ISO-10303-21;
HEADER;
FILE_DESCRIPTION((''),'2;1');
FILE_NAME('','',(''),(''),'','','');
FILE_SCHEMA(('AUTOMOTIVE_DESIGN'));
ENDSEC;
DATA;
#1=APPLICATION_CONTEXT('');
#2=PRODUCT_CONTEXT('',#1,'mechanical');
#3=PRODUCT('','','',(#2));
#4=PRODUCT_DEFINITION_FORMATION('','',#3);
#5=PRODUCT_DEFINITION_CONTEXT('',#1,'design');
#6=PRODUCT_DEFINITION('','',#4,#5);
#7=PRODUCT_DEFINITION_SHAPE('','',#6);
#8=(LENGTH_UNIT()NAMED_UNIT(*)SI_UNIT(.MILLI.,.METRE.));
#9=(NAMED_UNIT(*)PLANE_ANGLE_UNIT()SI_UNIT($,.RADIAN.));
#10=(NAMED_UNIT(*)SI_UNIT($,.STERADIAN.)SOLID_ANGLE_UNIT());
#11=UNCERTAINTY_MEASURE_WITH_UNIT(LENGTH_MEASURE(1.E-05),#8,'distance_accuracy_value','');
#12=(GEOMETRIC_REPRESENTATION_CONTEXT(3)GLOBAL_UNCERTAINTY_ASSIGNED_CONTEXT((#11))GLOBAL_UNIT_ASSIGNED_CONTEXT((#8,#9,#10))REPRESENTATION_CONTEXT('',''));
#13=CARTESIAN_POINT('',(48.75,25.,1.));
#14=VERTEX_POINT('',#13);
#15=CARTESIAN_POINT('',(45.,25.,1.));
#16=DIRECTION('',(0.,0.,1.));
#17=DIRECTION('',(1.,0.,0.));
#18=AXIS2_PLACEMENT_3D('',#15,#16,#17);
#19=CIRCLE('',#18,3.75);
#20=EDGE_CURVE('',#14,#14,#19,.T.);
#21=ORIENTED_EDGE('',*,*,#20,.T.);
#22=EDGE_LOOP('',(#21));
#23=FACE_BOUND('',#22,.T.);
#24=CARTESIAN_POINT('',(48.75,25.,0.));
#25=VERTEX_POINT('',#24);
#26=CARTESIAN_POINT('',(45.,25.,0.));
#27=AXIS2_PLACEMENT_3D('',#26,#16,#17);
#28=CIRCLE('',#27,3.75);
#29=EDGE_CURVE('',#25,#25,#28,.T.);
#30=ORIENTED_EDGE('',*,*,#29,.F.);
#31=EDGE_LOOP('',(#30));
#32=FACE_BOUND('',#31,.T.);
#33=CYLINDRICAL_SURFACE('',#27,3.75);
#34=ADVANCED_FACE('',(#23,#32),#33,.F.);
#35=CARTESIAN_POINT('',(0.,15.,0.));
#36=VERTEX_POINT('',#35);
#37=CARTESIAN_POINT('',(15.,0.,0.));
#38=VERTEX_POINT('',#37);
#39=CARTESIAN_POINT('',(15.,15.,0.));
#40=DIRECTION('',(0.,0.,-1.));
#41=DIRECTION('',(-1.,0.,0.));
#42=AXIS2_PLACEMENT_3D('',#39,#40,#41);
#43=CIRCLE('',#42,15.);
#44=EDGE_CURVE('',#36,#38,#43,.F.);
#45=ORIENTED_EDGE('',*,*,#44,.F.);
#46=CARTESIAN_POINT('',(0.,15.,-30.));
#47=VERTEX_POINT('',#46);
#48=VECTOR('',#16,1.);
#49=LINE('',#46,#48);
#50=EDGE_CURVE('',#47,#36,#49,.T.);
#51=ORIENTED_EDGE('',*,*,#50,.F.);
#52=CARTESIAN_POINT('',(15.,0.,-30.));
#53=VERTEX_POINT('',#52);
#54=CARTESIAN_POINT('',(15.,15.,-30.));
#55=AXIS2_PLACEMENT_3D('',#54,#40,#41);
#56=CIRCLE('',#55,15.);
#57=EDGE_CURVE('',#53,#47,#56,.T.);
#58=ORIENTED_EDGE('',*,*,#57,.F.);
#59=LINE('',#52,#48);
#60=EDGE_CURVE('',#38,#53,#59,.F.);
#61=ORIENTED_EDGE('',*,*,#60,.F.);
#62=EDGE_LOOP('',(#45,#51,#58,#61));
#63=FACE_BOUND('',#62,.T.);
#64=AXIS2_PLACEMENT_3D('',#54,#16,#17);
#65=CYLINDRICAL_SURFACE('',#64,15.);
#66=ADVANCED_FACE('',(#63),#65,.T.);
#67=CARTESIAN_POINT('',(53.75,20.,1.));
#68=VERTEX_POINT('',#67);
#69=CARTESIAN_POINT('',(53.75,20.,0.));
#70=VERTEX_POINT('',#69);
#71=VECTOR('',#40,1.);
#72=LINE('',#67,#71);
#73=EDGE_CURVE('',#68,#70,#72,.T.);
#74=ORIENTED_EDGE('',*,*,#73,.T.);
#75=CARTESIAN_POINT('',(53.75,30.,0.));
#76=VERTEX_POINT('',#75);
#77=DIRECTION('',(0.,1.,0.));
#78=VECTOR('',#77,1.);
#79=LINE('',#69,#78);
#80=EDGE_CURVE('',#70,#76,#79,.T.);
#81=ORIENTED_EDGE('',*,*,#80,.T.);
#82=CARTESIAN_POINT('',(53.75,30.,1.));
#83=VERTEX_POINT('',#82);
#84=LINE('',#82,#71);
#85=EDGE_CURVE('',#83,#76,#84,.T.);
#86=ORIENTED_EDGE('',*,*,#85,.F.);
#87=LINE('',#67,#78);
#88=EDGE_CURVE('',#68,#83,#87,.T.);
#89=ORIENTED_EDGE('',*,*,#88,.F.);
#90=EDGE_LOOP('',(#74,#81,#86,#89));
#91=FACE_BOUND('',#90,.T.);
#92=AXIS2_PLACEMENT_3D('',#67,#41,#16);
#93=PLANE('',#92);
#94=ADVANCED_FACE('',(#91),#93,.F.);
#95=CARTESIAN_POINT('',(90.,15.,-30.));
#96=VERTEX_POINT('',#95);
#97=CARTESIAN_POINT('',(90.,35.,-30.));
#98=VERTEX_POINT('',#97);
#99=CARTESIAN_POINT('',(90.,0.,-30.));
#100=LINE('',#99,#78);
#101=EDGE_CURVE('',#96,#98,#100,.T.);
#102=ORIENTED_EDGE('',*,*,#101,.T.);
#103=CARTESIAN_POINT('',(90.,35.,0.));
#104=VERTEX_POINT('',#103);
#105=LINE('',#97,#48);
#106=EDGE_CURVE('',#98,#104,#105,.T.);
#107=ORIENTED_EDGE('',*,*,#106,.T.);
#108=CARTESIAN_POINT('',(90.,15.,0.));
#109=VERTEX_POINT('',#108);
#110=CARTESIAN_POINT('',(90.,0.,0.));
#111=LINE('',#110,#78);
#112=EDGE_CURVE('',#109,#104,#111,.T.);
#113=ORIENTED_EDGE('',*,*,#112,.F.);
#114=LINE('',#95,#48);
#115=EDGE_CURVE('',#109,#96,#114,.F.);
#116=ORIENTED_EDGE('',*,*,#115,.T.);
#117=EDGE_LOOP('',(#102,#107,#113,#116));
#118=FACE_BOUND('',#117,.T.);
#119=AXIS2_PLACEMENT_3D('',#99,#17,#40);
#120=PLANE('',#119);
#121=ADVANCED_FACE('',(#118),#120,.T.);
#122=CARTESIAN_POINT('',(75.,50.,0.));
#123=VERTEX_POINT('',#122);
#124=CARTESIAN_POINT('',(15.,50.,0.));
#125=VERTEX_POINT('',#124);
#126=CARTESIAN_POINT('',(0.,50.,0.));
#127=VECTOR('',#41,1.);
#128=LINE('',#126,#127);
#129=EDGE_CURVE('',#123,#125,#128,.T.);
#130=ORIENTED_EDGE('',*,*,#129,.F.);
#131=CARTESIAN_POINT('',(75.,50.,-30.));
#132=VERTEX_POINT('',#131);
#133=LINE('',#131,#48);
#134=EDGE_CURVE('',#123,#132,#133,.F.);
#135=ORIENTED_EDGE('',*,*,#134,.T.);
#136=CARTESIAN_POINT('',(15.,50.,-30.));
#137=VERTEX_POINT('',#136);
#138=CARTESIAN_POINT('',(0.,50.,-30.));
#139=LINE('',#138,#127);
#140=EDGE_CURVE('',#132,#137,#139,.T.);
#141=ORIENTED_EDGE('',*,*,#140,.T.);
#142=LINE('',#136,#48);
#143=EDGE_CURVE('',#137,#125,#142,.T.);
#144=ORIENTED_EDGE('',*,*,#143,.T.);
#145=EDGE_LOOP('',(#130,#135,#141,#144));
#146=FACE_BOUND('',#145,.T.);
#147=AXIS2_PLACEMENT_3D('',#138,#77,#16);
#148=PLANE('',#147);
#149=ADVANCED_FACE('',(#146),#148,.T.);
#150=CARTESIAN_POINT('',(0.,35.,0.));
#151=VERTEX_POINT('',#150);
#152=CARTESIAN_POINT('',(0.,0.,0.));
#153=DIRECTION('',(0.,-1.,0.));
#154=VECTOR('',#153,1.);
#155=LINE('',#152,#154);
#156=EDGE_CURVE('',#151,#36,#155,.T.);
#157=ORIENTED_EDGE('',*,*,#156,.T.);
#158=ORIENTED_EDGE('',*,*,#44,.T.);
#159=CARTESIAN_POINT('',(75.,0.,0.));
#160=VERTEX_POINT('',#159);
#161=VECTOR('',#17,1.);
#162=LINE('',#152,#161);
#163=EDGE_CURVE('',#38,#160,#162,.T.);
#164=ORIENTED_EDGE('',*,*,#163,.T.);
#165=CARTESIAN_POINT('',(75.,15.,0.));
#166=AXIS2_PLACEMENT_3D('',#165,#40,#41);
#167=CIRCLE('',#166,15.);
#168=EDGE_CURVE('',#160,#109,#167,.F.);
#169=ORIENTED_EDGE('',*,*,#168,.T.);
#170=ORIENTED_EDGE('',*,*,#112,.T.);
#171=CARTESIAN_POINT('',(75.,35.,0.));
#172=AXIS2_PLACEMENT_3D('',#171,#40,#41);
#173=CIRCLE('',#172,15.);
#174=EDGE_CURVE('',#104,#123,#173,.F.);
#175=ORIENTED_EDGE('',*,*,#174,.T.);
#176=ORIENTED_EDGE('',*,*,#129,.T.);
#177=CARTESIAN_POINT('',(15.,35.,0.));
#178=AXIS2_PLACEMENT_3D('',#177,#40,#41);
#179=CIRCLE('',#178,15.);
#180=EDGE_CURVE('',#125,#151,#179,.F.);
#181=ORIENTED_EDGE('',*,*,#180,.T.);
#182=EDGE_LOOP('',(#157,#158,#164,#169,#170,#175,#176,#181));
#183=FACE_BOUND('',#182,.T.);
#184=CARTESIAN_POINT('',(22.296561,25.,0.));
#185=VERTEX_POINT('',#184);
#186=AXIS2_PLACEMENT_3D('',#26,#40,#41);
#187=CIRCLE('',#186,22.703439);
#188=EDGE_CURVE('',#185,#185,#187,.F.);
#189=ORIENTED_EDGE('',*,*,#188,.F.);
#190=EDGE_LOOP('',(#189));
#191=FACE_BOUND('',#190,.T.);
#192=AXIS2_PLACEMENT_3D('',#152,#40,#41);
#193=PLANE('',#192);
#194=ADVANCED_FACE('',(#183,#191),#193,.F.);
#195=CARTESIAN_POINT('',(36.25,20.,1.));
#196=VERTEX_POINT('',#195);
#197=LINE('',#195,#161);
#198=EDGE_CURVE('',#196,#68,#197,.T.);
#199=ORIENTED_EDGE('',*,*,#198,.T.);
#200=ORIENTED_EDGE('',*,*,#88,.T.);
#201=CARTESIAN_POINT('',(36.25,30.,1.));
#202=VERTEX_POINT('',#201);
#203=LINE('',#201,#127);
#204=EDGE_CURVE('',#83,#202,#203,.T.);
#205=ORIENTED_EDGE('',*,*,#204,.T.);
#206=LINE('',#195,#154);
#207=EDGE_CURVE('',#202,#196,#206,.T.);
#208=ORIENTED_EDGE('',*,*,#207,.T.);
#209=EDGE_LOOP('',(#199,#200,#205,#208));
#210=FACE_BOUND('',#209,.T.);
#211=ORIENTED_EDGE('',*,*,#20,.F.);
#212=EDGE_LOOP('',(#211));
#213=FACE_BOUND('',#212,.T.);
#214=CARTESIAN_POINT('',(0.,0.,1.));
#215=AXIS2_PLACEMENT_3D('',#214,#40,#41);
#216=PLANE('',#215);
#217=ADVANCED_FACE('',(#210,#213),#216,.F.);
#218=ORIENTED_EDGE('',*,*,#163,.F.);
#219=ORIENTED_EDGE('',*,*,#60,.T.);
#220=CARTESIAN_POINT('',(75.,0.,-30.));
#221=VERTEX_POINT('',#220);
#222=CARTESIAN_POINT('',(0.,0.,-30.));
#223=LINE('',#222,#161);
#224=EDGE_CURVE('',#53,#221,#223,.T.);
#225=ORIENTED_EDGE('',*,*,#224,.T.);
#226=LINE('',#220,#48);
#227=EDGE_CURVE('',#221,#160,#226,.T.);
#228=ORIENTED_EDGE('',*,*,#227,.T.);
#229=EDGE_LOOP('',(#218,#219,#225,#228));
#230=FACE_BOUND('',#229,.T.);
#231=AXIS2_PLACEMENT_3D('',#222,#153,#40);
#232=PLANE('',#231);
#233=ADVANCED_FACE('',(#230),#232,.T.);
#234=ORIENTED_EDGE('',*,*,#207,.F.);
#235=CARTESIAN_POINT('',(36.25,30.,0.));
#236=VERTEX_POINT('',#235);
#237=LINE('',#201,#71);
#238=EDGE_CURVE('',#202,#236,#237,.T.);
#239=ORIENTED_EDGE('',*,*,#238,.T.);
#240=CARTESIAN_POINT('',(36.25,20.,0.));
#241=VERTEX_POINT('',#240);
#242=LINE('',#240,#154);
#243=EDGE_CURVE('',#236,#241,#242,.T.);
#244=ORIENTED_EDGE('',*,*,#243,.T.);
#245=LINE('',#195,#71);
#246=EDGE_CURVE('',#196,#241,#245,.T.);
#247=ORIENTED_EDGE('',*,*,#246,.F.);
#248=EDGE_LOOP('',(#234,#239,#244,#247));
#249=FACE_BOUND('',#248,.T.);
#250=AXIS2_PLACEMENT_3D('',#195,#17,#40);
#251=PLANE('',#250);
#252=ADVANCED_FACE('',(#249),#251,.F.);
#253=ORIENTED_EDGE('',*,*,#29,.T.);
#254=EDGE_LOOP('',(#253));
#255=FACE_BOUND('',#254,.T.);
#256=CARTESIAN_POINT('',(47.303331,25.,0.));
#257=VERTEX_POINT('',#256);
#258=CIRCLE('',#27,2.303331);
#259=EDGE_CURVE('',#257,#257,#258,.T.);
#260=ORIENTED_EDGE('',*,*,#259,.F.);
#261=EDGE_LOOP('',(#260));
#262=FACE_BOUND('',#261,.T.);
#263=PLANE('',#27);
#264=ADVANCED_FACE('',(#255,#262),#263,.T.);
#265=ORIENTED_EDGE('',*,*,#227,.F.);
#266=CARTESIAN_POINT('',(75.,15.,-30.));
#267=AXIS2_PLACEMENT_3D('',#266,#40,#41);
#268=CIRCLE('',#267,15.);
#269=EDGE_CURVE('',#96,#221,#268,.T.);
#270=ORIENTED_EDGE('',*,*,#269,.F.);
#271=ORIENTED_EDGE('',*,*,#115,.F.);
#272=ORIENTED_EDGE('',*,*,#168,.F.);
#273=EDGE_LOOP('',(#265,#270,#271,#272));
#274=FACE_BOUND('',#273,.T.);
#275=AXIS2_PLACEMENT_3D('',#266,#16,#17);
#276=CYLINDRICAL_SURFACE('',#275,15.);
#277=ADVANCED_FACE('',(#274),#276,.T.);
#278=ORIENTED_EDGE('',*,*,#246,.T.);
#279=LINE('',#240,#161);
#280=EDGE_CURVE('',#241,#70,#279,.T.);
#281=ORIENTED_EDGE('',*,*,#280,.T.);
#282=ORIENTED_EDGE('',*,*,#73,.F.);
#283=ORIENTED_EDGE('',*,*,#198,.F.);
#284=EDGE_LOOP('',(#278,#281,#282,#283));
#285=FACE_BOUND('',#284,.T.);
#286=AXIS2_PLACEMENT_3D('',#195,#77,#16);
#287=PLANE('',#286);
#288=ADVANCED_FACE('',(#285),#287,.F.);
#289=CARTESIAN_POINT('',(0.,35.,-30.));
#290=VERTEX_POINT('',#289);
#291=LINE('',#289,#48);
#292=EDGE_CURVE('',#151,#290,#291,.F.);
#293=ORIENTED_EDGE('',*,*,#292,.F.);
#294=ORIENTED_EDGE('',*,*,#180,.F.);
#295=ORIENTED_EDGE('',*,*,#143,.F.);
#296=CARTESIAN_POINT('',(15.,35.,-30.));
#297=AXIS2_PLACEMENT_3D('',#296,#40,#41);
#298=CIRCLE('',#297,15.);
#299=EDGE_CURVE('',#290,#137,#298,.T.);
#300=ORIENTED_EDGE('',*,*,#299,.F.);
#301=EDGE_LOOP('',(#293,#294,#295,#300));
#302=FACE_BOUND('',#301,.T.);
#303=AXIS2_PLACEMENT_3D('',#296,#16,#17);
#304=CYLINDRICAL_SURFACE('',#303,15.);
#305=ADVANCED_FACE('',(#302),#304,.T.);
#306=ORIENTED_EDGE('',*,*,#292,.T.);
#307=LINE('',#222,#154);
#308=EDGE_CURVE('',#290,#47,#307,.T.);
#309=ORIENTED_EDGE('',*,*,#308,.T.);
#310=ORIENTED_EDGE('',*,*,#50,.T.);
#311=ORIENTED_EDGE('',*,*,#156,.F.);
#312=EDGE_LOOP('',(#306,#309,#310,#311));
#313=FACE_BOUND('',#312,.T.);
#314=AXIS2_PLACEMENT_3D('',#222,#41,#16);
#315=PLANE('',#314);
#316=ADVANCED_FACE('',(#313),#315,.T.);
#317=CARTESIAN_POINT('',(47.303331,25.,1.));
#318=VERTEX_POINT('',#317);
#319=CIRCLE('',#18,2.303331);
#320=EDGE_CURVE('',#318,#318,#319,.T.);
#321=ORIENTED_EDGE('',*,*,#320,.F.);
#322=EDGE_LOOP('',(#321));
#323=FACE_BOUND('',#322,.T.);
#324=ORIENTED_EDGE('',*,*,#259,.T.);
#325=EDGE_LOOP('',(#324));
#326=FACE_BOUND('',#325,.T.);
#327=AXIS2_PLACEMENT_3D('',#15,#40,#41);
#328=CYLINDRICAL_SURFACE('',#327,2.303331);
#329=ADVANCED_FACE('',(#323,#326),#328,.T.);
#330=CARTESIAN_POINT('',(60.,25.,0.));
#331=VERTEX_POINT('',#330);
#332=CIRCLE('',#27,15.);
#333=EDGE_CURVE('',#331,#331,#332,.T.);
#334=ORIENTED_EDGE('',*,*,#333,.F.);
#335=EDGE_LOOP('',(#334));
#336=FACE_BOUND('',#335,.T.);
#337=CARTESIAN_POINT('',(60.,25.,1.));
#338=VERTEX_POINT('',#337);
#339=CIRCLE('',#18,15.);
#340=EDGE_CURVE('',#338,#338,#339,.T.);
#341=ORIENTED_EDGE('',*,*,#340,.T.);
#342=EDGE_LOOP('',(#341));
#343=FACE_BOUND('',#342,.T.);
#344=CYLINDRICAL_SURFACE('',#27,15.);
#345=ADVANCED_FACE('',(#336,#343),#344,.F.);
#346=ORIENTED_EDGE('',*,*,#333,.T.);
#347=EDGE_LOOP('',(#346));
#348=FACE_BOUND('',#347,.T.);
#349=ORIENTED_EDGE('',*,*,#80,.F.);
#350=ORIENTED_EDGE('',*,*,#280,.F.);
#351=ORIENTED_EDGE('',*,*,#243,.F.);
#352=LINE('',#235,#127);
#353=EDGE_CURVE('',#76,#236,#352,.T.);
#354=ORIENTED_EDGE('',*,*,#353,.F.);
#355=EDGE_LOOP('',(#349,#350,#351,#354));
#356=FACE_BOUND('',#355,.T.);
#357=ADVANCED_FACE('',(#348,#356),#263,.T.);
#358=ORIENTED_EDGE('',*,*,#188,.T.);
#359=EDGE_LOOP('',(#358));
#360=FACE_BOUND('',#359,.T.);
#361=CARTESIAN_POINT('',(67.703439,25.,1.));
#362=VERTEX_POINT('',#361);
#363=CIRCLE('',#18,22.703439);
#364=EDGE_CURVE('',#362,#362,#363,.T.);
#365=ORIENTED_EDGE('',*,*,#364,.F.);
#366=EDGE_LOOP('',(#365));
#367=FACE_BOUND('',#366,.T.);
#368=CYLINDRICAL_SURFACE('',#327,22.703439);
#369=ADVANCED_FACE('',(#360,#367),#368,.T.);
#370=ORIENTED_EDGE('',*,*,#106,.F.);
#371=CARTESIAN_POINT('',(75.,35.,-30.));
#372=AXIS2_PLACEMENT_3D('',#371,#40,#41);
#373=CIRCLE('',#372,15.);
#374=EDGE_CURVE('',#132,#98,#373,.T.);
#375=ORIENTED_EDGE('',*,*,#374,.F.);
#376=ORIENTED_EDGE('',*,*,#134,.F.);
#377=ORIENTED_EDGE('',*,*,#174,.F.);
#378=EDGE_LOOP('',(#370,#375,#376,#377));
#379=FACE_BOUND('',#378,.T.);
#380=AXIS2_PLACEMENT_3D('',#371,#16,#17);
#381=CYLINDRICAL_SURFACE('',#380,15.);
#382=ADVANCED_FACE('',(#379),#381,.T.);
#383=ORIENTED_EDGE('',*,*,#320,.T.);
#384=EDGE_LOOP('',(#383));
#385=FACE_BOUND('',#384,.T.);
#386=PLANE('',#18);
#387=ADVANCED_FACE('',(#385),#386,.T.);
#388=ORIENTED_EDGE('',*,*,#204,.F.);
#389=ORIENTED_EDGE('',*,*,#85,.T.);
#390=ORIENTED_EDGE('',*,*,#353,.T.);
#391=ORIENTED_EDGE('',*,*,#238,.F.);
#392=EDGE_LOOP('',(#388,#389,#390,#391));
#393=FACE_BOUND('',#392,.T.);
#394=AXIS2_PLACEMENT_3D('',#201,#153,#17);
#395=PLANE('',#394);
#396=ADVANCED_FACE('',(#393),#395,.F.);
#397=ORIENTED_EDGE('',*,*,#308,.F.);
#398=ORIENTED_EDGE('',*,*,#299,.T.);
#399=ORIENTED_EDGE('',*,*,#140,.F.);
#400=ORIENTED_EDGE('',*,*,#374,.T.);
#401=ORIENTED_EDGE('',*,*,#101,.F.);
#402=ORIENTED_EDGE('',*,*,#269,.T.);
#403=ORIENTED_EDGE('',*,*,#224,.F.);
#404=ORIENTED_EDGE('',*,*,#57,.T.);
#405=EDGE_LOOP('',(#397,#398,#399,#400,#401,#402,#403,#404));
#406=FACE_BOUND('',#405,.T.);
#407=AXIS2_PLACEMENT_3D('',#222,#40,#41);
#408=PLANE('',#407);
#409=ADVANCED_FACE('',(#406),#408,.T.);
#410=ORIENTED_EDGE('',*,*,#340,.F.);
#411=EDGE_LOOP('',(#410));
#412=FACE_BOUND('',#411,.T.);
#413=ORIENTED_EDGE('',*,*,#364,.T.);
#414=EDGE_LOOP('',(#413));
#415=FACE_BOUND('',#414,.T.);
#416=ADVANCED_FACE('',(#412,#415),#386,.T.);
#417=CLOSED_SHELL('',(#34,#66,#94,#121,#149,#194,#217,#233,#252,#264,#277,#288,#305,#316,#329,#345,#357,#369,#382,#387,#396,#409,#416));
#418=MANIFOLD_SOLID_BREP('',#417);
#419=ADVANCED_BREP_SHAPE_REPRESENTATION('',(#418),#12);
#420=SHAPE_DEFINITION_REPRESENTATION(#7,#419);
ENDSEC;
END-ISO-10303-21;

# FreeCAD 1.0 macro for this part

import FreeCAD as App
import Part
import Sketcher


def edges_at(feature, points):
    """Names of the edges that pass closest to the given points."""
    edges = feature.Shape.Edges
    near = lambda p: min(range(len(edges)), key=lambda i: edges[i].distToShape(Part.Vertex(*p))[0])
    return sorted({f"Edge{near(p) + 1}" for p in points})


def add_polygon(sketch, points):
    """Adds a closed chain of lines whose ends are joined by coincident constraints."""
    first, n = sketch.GeometryCount, len(points)
    for a, b in zip(points, points[1:] + points[:1]):
        sketch.addGeometry(Part.LineSegment(App.Vector(*a, 0), App.Vector(*b, 0)), False)
    for i in range(n):
        sketch.addConstraint(Sketcher.Constraint("Coincident", first + i, 2, first + (i + 1) % n, 1))

doc = App.newDocument("Part")
body = doc.addObject("PartDesign::Body", "Body")

# Sketch on XY plane
sketch1 = body.newObject("Sketcher::SketchObject", "Sketch")
sketch1.AttachmentSupport = (doc.getObject("XY_Plane"), [""])
sketch1.MapMode = "FlatFace"
add_polygon(sketch1, [(0, 50), (0, 0), (90, 0), (90, 50)])  # lines 0-3
sketch1.addConstraint([
    Sketcher.Constraint("Vertical", 0),
    Sketcher.Constraint("Horizontal", 1),
    Sketcher.Constraint("Vertical", 2),
    Sketcher.Constraint("Horizontal", 3),
    Sketcher.Constraint("Coincident", 0, 2, -1, 1),
    Sketcher.Constraint("DistanceX", 1, 1, 1, 2, 90.0),
    Sketcher.Constraint("DistanceY", 0, 2, 0, 1, 50.0),
])
pad1 = body.newObject("PartDesign::Pad", "Pad")
pad1.Profile = sketch1
pad1.Length = 30
pad1.Reversed = True
doc.recompute()

fillet = body.newObject("PartDesign::Fillet", "Fillet")
fillet.Base = (pad1, edges_at(pad1, [
    (0, 50, -15),
    (90, 50, -15),
    (90, 0, -15),
    (0, 0, -15),
]))
fillet.Radius = 15

# Sketch on XY plane
sketch2 = body.newObject("Sketcher::SketchObject", "Sketch001")
sketch2.AttachmentSupport = (doc.getObject("XY_Plane"), [""])
sketch2.MapMode = "FlatFace"
sketch2.addGeometry(Part.Circle(App.Vector(45, 25, 0), App.Vector(0, 0, 1), 23), False)
sketch2.addConstraint([
    Sketcher.Constraint("DistanceX", -1, 1, 0, 3, 45.0),
    Sketcher.Constraint("DistanceY", -1, 1, 0, 3, 25.0),
    Sketcher.Constraint("Diameter", 0, 45.406877),
])
pad2 = body.newObject("PartDesign::Pad", "Pad001")
pad2.Profile = sketch2
pad2.Length = 1

# Sketch on XY plane
sketch3 = body.newObject("Sketcher::SketchObject", "Sketch002")
sketch3.AttachmentSupport = (doc.getObject("XY_Plane"), [""])
sketch3.MapMode = "FlatFace"
sketch3.AttachmentOffset = App.Placement(App.Vector(0, 0, 1), App.Rotation())
sketch3.addGeometry(Part.Circle(App.Vector(45, 25, 0), App.Vector(0, 0, 1), 15), False)
sketch3.addConstraint([
    Sketcher.Constraint("Diameter", 0, 30.0),
    Sketcher.Constraint("DistanceX", -1, 1, 0, 3, 45.0),
    Sketcher.Constraint("DistanceY", -1, 1, 0, 3, 25.0),
])
pocket1 = body.newObject("PartDesign::Pocket", "Pocket")
pocket1.Profile = sketch3
pocket1.Length = 1

# Sketch on XY plane
sketch4 = body.newObject("Sketcher::SketchObject", "Sketch003")
sketch4.AttachmentSupport = (doc.getObject("XY_Plane"), [""])
sketch4.MapMode = "FlatFace"
add_polygon(sketch4, [(36, 30), (36, 20), (54, 20), (54, 30)])  # lines 0-3
sketch4.addConstraint([
    Sketcher.Constraint("Vertical", 0),
    Sketcher.Constraint("Horizontal", 1),
    Sketcher.Constraint("Vertical", 2),
    Sketcher.Constraint("Horizontal", 3),
    Sketcher.Constraint("DistanceY", 0, 2, 0, 1, 10.0),
    Sketcher.Constraint("DistanceX", 1, 1, 1, 2, 17.5),
    Sketcher.Constraint("DistanceY", -1, 1, 0, 2, 20.0),
    Sketcher.Constraint("DistanceX", -1, 1, 0, 2, 36.25),
])
pad3 = body.newObject("PartDesign::Pad", "Pad002")
pad3.Profile = sketch4
pad3.Length = 1

# Sketch on XY plane
sketch5 = body.newObject("Sketcher::SketchObject", "Sketch004")
sketch5.AttachmentSupport = (doc.getObject("XY_Plane"), [""])
sketch5.MapMode = "FlatFace"
sketch5.AttachmentOffset = App.Placement(App.Vector(0, 0, 1), App.Rotation())
sketch5.addGeometry(Part.Circle(App.Vector(45, 25, 0), App.Vector(0, 0, 1), 3.8), False)
sketch5.addConstraint([
    Sketcher.Constraint("Diameter", 0, 7.5),
    Sketcher.Constraint("DistanceX", -1, 1, 0, 3, 45.0),
    Sketcher.Constraint("DistanceY", -1, 1, 0, 3, 25.0),
])
pocket2 = body.newObject("PartDesign::Pocket", "Pocket001")
pocket2.Profile = sketch5
pocket2.Length = 1

# Sketch on XY plane
sketch6 = body.newObject("Sketcher::SketchObject", "Sketch005")
sketch6.AttachmentSupport = (doc.getObject("XY_Plane"), [""])
sketch6.MapMode = "FlatFace"
sketch6.addGeometry(Part.Circle(App.Vector(45, 25, 0), App.Vector(0, 0, 1), 2.3), False)
sketch6.addConstraint([
    Sketcher.Constraint("DistanceX", -1, 1, 0, 3, 45.0),
    Sketcher.Constraint("DistanceY", -1, 1, 0, 3, 25.0),
    Sketcher.Constraint("Diameter", 0, 4.606661),
])
pad4 = body.newObject("PartDesign::Pad", "Pad003")
pad4.Profile = sketch6
pad4.Length = 1

doc.recompute()
